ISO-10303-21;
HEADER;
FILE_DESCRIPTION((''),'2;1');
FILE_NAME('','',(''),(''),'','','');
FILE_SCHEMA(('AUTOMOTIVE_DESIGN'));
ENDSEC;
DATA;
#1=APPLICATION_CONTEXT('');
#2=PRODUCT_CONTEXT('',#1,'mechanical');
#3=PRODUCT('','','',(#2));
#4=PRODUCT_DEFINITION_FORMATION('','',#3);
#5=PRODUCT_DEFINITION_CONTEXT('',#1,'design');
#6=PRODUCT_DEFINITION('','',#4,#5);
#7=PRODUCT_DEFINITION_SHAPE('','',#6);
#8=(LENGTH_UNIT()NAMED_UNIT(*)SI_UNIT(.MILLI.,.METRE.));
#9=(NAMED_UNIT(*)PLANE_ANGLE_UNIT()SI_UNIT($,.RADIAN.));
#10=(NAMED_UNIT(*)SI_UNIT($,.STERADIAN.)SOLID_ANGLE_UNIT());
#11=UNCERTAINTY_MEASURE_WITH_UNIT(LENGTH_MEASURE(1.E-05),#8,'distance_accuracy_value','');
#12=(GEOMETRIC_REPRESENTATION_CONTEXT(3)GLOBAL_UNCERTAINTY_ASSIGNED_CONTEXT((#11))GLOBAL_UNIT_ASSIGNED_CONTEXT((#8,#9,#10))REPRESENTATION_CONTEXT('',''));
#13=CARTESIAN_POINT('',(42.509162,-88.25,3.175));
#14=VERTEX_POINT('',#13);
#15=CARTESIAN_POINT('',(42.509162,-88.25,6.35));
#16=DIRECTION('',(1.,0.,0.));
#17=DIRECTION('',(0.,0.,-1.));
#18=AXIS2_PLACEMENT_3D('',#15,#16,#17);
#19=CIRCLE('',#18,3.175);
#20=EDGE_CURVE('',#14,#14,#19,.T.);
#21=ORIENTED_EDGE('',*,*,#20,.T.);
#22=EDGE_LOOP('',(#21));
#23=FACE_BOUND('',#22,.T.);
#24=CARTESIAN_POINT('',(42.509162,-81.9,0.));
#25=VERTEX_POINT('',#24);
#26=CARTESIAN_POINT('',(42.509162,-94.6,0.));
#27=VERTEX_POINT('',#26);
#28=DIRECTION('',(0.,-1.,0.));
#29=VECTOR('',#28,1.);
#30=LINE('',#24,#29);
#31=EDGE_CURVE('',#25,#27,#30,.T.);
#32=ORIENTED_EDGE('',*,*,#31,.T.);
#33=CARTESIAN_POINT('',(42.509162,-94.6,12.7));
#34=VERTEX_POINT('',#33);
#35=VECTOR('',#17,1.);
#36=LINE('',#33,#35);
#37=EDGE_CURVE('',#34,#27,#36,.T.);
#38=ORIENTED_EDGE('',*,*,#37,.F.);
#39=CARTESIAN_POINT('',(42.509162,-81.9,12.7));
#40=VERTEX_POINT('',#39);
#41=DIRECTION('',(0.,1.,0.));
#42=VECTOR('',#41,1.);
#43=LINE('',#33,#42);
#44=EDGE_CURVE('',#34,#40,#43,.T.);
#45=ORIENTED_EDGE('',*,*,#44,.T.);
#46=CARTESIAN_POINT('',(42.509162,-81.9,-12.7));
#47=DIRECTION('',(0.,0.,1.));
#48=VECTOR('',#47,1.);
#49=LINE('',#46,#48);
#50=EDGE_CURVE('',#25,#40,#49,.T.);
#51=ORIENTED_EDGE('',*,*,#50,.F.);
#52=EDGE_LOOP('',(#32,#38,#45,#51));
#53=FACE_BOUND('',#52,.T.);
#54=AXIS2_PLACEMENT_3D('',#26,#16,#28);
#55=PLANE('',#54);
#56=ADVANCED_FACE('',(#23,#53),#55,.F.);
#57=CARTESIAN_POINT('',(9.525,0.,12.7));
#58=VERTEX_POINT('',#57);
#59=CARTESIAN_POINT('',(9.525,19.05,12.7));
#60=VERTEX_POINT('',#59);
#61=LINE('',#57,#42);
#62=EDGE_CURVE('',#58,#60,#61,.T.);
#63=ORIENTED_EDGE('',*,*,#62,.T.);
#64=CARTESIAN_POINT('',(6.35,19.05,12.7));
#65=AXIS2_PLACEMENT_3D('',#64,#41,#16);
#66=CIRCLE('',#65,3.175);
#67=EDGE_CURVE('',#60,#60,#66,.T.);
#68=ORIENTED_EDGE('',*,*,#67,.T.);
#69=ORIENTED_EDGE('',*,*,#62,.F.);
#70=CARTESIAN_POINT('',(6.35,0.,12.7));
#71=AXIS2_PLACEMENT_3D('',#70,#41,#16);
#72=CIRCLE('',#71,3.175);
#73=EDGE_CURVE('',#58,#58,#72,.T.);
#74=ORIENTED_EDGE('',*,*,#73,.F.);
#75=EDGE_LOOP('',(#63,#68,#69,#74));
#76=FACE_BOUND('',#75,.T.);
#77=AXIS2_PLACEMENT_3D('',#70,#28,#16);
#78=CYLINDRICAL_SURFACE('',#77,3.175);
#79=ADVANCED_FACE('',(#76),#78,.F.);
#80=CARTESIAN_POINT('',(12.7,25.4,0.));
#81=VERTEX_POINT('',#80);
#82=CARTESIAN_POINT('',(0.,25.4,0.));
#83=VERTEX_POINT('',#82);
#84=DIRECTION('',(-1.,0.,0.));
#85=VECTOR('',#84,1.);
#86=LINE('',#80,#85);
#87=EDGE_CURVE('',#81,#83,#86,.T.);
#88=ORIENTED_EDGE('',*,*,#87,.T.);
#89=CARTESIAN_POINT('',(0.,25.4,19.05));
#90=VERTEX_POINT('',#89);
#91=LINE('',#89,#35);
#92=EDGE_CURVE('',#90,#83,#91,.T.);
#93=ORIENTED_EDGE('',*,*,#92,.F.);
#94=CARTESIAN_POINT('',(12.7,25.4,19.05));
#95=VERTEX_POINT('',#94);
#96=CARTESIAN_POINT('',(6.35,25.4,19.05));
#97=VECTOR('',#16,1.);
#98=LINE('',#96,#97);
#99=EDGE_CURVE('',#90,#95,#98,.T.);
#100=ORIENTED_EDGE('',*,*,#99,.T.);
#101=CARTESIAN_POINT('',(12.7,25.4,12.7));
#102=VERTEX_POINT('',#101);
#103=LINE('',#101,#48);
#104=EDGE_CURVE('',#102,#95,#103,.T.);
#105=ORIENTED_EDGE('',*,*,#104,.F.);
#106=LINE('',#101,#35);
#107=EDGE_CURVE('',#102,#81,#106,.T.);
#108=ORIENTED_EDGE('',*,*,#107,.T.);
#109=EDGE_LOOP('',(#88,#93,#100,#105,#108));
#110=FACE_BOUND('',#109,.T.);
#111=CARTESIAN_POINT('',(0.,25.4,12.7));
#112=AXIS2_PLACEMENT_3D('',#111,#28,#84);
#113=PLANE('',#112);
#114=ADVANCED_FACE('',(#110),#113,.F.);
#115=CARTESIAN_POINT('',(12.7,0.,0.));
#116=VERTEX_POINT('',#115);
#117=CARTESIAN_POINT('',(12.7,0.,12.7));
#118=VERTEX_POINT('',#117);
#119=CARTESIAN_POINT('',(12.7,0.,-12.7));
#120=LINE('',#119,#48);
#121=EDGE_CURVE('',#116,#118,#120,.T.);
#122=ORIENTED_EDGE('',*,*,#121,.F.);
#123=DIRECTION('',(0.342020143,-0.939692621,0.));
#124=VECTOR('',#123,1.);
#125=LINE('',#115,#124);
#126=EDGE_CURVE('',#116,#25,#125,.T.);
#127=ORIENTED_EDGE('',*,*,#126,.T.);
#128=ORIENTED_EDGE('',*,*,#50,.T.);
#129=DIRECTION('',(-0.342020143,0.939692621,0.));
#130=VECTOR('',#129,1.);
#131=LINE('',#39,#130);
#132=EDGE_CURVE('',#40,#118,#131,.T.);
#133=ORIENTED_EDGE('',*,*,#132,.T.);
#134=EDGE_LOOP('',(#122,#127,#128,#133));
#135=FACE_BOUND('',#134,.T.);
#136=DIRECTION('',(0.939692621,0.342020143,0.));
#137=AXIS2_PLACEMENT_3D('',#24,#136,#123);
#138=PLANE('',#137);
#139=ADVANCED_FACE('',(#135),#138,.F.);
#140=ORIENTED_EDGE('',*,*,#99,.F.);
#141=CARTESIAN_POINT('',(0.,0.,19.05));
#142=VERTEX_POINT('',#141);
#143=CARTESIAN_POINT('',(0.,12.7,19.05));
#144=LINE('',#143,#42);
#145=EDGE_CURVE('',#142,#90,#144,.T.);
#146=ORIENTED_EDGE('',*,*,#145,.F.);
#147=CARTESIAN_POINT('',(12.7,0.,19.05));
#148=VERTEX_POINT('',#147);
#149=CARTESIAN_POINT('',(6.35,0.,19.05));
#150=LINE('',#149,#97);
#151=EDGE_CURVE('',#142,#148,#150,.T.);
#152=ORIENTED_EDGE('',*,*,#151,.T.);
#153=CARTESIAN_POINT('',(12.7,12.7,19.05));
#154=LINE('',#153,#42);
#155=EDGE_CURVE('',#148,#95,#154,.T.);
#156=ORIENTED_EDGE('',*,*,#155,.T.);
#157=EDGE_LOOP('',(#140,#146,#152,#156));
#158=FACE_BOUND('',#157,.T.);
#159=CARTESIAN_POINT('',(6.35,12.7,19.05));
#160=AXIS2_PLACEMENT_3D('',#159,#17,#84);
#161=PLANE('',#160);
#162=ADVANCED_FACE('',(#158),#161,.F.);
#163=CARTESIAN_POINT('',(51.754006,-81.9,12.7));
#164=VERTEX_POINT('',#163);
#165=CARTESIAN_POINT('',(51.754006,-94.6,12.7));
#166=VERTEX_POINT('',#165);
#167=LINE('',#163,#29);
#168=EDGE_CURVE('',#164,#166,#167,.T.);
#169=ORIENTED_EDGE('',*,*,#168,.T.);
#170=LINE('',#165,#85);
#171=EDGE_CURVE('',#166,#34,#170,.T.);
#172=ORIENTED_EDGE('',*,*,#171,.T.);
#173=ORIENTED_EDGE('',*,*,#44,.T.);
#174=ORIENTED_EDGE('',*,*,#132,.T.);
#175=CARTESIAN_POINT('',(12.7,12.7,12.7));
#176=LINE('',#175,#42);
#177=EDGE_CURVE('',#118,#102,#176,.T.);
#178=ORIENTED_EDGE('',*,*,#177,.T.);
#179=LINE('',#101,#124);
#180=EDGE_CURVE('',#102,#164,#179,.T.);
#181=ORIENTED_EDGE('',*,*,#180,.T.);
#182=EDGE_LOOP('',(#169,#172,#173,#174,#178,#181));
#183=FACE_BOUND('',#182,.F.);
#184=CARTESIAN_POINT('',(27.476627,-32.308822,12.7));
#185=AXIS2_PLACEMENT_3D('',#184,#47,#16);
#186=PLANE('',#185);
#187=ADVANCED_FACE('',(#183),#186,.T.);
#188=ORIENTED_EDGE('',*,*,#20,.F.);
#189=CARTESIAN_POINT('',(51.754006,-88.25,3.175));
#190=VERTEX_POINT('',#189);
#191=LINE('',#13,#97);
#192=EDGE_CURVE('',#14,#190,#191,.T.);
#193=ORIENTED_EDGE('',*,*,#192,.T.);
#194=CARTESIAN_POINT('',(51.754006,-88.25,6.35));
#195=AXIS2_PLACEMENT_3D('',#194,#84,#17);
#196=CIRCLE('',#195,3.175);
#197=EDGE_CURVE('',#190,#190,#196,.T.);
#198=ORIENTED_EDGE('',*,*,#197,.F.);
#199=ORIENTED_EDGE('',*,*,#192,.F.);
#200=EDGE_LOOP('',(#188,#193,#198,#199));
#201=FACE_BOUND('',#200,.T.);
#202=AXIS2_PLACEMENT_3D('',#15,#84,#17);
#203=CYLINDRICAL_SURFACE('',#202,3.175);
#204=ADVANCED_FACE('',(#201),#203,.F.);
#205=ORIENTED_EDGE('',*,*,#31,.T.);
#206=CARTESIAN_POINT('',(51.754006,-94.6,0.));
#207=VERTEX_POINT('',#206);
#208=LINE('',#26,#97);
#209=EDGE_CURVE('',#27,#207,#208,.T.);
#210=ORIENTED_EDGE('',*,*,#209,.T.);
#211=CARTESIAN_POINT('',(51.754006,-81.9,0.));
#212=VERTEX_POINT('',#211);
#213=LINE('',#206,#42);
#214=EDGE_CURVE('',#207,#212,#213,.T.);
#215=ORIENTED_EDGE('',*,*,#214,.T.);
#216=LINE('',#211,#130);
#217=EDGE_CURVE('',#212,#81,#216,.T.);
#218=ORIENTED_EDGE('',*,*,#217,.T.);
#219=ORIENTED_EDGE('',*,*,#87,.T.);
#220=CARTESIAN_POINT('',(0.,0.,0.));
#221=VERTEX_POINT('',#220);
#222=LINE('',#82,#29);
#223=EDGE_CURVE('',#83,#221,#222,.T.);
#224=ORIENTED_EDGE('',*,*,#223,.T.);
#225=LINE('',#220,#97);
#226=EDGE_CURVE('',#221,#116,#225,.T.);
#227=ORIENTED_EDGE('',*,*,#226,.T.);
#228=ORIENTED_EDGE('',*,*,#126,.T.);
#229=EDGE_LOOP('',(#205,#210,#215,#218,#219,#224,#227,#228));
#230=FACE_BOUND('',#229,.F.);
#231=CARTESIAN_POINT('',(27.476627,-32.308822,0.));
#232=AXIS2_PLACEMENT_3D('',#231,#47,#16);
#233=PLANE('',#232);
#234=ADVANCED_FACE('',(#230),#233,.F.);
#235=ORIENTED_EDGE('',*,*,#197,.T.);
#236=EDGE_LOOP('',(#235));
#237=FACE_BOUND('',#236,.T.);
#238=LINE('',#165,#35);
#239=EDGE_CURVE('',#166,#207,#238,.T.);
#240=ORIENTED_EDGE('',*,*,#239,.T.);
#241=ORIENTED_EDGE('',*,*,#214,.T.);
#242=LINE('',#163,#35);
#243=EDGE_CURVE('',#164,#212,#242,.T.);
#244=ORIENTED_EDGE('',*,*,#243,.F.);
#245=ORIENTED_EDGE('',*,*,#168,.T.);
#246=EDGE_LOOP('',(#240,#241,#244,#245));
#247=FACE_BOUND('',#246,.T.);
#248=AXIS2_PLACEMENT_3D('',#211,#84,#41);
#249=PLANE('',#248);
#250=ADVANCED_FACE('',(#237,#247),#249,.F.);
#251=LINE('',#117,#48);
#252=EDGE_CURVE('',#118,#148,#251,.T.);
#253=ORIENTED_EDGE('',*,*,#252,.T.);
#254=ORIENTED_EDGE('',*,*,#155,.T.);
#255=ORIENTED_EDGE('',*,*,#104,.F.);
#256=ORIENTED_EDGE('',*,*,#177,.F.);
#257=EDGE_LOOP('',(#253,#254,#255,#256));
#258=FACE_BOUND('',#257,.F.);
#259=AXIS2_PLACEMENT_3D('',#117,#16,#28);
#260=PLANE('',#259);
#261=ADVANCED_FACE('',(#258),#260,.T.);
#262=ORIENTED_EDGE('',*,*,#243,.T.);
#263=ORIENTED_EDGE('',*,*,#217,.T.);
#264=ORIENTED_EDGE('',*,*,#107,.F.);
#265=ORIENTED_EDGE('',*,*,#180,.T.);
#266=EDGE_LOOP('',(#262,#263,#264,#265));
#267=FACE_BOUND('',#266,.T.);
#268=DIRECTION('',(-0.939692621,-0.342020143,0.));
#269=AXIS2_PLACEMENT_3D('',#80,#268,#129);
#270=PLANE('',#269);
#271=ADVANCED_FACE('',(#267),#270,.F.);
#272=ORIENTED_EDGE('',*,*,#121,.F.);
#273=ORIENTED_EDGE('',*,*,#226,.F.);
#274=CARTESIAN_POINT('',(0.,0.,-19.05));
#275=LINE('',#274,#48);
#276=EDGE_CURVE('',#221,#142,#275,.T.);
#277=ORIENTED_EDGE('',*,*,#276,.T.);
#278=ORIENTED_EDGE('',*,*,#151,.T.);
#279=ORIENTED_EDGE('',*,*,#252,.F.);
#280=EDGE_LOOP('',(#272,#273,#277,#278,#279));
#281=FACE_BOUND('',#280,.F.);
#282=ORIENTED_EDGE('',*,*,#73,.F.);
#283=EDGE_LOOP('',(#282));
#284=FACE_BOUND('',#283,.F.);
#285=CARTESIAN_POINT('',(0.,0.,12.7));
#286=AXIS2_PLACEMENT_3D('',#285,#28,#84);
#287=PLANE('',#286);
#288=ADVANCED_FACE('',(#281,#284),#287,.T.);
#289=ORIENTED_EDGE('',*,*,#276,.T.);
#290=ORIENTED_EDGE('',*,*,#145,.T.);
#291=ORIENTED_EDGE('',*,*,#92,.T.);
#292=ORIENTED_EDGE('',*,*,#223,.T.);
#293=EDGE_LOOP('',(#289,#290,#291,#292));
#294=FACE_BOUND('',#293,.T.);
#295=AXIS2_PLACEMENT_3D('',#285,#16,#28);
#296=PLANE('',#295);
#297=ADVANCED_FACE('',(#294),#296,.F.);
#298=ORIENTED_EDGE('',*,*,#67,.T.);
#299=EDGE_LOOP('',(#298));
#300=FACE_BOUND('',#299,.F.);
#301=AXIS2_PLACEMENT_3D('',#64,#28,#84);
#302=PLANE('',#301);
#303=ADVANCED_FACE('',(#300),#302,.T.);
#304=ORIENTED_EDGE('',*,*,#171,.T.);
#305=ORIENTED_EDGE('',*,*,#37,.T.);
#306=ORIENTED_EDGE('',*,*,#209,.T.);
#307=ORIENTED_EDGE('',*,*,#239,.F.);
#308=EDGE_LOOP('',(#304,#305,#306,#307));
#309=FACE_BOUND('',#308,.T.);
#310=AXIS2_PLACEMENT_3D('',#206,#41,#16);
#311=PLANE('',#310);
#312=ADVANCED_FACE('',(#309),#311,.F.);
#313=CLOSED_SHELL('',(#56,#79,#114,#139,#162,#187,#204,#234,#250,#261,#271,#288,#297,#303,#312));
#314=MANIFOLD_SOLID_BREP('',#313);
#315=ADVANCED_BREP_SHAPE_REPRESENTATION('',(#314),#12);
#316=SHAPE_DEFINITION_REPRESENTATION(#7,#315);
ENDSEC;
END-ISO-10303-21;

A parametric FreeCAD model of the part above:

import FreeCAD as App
import Part
import Sketcher

V = App.Vector
Q = App.Units.Quantity

doc = App.newDocument("Part")
body = doc.addObject("PartDesign::Body", "Body")

# Sketch on XY plane
sketch1 = body.newObject("Sketcher::SketchObject", "Sketch")
sketch1.AttachmentSupport = (doc.getObject("XY_Plane"), [""])
sketch1.MapMode = "FlatFace"
sketch1.addGeometry([
    Part.LineSegment(V(0, 25, 0), V(0, 0, 0)),  # 0
    Part.LineSegment(V(0, 0, 0), V(13, 0, 0)),  # 1
    Part.LineSegment(V(13, 0, 0), V(43, -82, 0)),  # 2
    Part.LineSegment(V(43, -82, 0), V(43, -95, 0)),  # 3
    Part.LineSegment(V(43, -95, 0), V(52, -95, 0)),  # 4
    Part.LineSegment(V(52, -95, 0), V(52, -82, 0)),  # 5
    Part.LineSegment(V(52, -82, 0), V(13, 25, 0)),  # 6
    Part.LineSegment(V(13, 25, 0), V(0, 25, 0)),  # 7
], False)
sketch1.addConstraint([
    Sketcher.Constraint("Coincident", 0, 2, 1, 1),
    Sketcher.Constraint("Coincident", 1, 2, 2, 1),
    Sketcher.Constraint("Coincident", 2, 2, 3, 1),
    Sketcher.Constraint("Coincident", 3, 2, 4, 1),
    Sketcher.Constraint("Coincident", 4, 2, 5, 1),
    Sketcher.Constraint("Coincident", 5, 2, 6, 1),
    Sketcher.Constraint("Coincident", 6, 2, 7, 1),
    Sketcher.Constraint("Coincident", 7, 2, 0, 1),
    Sketcher.Constraint("Vertical", 0),
    Sketcher.Constraint("Horizontal", 1),
    Sketcher.Constraint("Vertical", 3),
    Sketcher.Constraint("Horizontal", 4),
    Sketcher.Constraint("Vertical", 5),
    Sketcher.Constraint("Horizontal", 7),
    Sketcher.Constraint("Coincident", 0, 2, -1, 1),
    Sketcher.Constraint("Parallel", 2, 6),
    Sketcher.Constraint("Horizontal", 2, 2, 5, 2),
    Sketcher.Constraint("Vertical", 1, 2, 6, 2),
    Sketcher.Constraint("Equal", 7, 3),
    Sketcher.Constraint("DistanceY", 0, 2, 0, 1, Q("1 in")),
    Sketcher.Constraint("DistanceX", 1, 1, 1, 2, Q("0.5 in")),
    Sketcher.Constraint("Angle", 2, Q("-70 deg")),
    Sketcher.Constraint("DistanceY", 2, 2, -1, 1, Q("81.9 mm")),
])
pad1 = body.newObject("PartDesign::Pad", "Pad")
pad1.Profile = sketch1
pad1.Length = Q("0.5 in")
pad1.Reversed = True

# Sketch on YZ plane
sketch2 = body.newObject("Sketcher::SketchObject", "Sketch001")
sketch2.AttachmentSupport = (doc.getObject("YZ_Plane"), [""])
sketch2.MapMode = "FlatFace"
sketch2.AttachmentOffset = App.Placement(V(0, 0, 42.509162), App.Rotation())
sketch2.addGeometry(Part.Circle(V(-88.2, -6.3, 0), V(0, 0, 1), 3.2), False)
sketch2.addConstraint([
    Sketcher.Constraint("Diameter", 0, Q("0.25 in")),
    Sketcher.Constraint("DistanceY", 0, 3, -1, 1, Q("0.25 in")),
    Sketcher.Constraint("DistanceX", 0, 3, -1, 1, Q("88.25 mm")),
])
pocket1 = body.newObject("PartDesign::Pocket", "Pocket")
pocket1.Profile = sketch2
pocket1.Type = "ThroughAll"
pocket1.Reversed = True

# Sketch on XY plane
sketch3 = body.newObject("Sketcher::SketchObject", "Sketch002")
sketch3.AttachmentSupport = (doc.getObject("XY_Plane"), [""])
sketch3.MapMode = "FlatFace"
sketch3.AttachmentOffset = App.Placement(V(0, 0, -0.5 * 25.4), App.Rotation())
sketch3.addGeometry([
    Part.LineSegment(V(0, 25, 0), V(0, 0, 0)),
    Part.LineSegment(V(0, 0, 0), V(13, 0, 0)),
    Part.LineSegment(V(13, 0, 0), V(13, 25, 0)),
    Part.LineSegment(V(13, 25, 0), V(0, 25, 0)),
], False)
sketch3.addConstraint([
    Sketcher.Constraint("Coincident", 0, 2, 1, 1),
    Sketcher.Constraint("Coincident", 1, 2, 2, 1),
    Sketcher.Constraint("Coincident", 2, 2, 3, 1),
    Sketcher.Constraint("Coincident", 3, 2, 0, 1),
    Sketcher.Constraint("Vertical", 0),
    Sketcher.Constraint("Horizontal", 1),
    Sketcher.Constraint("Vertical", 2),
    Sketcher.Constraint("Horizontal", 3),
    Sketcher.Constraint("Coincident", 0, 2, -1, 1),
    Sketcher.Constraint("DistanceY", 0, 2, 0, 1, Q("1 in")),
    Sketcher.Constraint("DistanceX", 1, 1, 1, 2, Q("0.5 in")),
])
pad2 = body.newObject("PartDesign::Pad", "Pad001")
pad2.Profile = sketch3
pad2.Length = Q("0.25 in")
pad2.Reversed = True

# Sketch on XZ plane
sketch4 = body.newObject("Sketcher::SketchObject", "Sketch003")
sketch4.AttachmentSupport = (doc.getObject("XZ_Plane"), [""])
sketch4.MapMode = "FlatFace"
sketch4.addGeometry(Part.Circle(V(6.3, -12.7, 0), V(0, 0, 1), 3.2), False)
sketch4.addConstraint([
    Sketcher.Constraint("Diameter", 0, Q("0.25 in")),
    Sketcher.Constraint("DistanceY", 0, 3, -1, 1, Q("0.5 in")),
    Sketcher.Constraint("DistanceX", -1, 1, 0, 3, Q("0.25 in")),
])
pocket2 = body.newObject("PartDesign::Pocket", "Pocket001")
pocket2.Profile = sketch4
pocket2.Length = Q("0.75 in")
doc.recompute()

mirrored = body.newObject("PartDesign::Mirrored", "Mirrored")
mirrored.Originals = [pad1, pocket1, pad2, pocket2]
mirrored.MirrorPlane = (doc.getObject("XY_Plane"), [""])
body.Tip = mirrored

# Sketch on XY plane
sketch5 = body.newObject("Sketcher::SketchObject", "Sketch004")
sketch5.AttachmentSupport = (doc.getObject("XY_Plane"), [""])
sketch5.MapMode = "FlatFace"
sketch5.addGeometry([
    Part.LineSegment(V(13, 25, 0), V(0, 25, 0)),  # 0
    Part.LineSegment(V(0, 25, 0), V(0, 0, 0)),  # 1
    Part.LineSegment(V(0, 0, 0), V(13, 0, 0)),  # 2
    Part.LineSegment(V(13, 0, 0), V(43, -82, 0)),  # 3
    Part.LineSegment(V(43, -82, 0), V(43, -95, 0)),  # 4
    Part.LineSegment(V(43, -95, 0), V(52, -95, 0)),  # 5
    Part.LineSegment(V(52, -95, 0), V(52, -82, 0)),  # 6
    Part.LineSegment(V(52, -82, 0), V(13, 25, 0)),  # 7
], False)
sketch5.addConstraint([
    Sketcher.Constraint("Coincident", 0, 2, 1, 1),
    Sketcher.Constraint("Coincident", 1, 2, 2, 1),
    Sketcher.Constraint("Coincident", 2, 2, 3, 1),
    Sketcher.Constraint("Coincident", 3, 2, 4, 1),
    Sketcher.Constraint("Coincident", 4, 2, 5, 1),
    Sketcher.Constraint("Coincident", 5, 2, 6, 1),
    Sketcher.Constraint("Coincident", 6, 2, 7, 1),
    Sketcher.Constraint("Coincident", 7, 2, 0, 1),
    Sketcher.Constraint("Horizontal", 0),
    Sketcher.Constraint("Vertical", 1),
    Sketcher.Constraint("Horizontal", 2),
    Sketcher.Constraint("Vertical", 4),
    Sketcher.Constraint("Horizontal", 5),
    Sketcher.Constraint("Vertical", 6),
    Sketcher.Constraint("Coincident", 1, 2, -1, 1),
    Sketcher.Constraint("Parallel", 3, 7),
    Sketcher.Constraint("Horizontal", 3, 2, 6, 2),
    Sketcher.Constraint("Vertical", 2, 2, 7, 2),
    Sketcher.Constraint("Equal", 2, 4),
    Sketcher.Constraint("DistanceY", 1, 2, 1, 1, Q("1 in")),
    Sketcher.Constraint("DistanceX", 0, 2, 0, 1, Q("0.5 in")),
    Sketcher.Constraint("Angle", 3, Q("-70 deg")),
    Sketcher.Constraint("DistanceY", 3, 2, -1, 1, Q("81.9 mm")),
])
pocket3 = body.newObject("PartDesign::Pocket", "Pocket002")
pocket3.Profile = sketch5
pocket3.Type = "ThroughAll"

doc.recompute()
